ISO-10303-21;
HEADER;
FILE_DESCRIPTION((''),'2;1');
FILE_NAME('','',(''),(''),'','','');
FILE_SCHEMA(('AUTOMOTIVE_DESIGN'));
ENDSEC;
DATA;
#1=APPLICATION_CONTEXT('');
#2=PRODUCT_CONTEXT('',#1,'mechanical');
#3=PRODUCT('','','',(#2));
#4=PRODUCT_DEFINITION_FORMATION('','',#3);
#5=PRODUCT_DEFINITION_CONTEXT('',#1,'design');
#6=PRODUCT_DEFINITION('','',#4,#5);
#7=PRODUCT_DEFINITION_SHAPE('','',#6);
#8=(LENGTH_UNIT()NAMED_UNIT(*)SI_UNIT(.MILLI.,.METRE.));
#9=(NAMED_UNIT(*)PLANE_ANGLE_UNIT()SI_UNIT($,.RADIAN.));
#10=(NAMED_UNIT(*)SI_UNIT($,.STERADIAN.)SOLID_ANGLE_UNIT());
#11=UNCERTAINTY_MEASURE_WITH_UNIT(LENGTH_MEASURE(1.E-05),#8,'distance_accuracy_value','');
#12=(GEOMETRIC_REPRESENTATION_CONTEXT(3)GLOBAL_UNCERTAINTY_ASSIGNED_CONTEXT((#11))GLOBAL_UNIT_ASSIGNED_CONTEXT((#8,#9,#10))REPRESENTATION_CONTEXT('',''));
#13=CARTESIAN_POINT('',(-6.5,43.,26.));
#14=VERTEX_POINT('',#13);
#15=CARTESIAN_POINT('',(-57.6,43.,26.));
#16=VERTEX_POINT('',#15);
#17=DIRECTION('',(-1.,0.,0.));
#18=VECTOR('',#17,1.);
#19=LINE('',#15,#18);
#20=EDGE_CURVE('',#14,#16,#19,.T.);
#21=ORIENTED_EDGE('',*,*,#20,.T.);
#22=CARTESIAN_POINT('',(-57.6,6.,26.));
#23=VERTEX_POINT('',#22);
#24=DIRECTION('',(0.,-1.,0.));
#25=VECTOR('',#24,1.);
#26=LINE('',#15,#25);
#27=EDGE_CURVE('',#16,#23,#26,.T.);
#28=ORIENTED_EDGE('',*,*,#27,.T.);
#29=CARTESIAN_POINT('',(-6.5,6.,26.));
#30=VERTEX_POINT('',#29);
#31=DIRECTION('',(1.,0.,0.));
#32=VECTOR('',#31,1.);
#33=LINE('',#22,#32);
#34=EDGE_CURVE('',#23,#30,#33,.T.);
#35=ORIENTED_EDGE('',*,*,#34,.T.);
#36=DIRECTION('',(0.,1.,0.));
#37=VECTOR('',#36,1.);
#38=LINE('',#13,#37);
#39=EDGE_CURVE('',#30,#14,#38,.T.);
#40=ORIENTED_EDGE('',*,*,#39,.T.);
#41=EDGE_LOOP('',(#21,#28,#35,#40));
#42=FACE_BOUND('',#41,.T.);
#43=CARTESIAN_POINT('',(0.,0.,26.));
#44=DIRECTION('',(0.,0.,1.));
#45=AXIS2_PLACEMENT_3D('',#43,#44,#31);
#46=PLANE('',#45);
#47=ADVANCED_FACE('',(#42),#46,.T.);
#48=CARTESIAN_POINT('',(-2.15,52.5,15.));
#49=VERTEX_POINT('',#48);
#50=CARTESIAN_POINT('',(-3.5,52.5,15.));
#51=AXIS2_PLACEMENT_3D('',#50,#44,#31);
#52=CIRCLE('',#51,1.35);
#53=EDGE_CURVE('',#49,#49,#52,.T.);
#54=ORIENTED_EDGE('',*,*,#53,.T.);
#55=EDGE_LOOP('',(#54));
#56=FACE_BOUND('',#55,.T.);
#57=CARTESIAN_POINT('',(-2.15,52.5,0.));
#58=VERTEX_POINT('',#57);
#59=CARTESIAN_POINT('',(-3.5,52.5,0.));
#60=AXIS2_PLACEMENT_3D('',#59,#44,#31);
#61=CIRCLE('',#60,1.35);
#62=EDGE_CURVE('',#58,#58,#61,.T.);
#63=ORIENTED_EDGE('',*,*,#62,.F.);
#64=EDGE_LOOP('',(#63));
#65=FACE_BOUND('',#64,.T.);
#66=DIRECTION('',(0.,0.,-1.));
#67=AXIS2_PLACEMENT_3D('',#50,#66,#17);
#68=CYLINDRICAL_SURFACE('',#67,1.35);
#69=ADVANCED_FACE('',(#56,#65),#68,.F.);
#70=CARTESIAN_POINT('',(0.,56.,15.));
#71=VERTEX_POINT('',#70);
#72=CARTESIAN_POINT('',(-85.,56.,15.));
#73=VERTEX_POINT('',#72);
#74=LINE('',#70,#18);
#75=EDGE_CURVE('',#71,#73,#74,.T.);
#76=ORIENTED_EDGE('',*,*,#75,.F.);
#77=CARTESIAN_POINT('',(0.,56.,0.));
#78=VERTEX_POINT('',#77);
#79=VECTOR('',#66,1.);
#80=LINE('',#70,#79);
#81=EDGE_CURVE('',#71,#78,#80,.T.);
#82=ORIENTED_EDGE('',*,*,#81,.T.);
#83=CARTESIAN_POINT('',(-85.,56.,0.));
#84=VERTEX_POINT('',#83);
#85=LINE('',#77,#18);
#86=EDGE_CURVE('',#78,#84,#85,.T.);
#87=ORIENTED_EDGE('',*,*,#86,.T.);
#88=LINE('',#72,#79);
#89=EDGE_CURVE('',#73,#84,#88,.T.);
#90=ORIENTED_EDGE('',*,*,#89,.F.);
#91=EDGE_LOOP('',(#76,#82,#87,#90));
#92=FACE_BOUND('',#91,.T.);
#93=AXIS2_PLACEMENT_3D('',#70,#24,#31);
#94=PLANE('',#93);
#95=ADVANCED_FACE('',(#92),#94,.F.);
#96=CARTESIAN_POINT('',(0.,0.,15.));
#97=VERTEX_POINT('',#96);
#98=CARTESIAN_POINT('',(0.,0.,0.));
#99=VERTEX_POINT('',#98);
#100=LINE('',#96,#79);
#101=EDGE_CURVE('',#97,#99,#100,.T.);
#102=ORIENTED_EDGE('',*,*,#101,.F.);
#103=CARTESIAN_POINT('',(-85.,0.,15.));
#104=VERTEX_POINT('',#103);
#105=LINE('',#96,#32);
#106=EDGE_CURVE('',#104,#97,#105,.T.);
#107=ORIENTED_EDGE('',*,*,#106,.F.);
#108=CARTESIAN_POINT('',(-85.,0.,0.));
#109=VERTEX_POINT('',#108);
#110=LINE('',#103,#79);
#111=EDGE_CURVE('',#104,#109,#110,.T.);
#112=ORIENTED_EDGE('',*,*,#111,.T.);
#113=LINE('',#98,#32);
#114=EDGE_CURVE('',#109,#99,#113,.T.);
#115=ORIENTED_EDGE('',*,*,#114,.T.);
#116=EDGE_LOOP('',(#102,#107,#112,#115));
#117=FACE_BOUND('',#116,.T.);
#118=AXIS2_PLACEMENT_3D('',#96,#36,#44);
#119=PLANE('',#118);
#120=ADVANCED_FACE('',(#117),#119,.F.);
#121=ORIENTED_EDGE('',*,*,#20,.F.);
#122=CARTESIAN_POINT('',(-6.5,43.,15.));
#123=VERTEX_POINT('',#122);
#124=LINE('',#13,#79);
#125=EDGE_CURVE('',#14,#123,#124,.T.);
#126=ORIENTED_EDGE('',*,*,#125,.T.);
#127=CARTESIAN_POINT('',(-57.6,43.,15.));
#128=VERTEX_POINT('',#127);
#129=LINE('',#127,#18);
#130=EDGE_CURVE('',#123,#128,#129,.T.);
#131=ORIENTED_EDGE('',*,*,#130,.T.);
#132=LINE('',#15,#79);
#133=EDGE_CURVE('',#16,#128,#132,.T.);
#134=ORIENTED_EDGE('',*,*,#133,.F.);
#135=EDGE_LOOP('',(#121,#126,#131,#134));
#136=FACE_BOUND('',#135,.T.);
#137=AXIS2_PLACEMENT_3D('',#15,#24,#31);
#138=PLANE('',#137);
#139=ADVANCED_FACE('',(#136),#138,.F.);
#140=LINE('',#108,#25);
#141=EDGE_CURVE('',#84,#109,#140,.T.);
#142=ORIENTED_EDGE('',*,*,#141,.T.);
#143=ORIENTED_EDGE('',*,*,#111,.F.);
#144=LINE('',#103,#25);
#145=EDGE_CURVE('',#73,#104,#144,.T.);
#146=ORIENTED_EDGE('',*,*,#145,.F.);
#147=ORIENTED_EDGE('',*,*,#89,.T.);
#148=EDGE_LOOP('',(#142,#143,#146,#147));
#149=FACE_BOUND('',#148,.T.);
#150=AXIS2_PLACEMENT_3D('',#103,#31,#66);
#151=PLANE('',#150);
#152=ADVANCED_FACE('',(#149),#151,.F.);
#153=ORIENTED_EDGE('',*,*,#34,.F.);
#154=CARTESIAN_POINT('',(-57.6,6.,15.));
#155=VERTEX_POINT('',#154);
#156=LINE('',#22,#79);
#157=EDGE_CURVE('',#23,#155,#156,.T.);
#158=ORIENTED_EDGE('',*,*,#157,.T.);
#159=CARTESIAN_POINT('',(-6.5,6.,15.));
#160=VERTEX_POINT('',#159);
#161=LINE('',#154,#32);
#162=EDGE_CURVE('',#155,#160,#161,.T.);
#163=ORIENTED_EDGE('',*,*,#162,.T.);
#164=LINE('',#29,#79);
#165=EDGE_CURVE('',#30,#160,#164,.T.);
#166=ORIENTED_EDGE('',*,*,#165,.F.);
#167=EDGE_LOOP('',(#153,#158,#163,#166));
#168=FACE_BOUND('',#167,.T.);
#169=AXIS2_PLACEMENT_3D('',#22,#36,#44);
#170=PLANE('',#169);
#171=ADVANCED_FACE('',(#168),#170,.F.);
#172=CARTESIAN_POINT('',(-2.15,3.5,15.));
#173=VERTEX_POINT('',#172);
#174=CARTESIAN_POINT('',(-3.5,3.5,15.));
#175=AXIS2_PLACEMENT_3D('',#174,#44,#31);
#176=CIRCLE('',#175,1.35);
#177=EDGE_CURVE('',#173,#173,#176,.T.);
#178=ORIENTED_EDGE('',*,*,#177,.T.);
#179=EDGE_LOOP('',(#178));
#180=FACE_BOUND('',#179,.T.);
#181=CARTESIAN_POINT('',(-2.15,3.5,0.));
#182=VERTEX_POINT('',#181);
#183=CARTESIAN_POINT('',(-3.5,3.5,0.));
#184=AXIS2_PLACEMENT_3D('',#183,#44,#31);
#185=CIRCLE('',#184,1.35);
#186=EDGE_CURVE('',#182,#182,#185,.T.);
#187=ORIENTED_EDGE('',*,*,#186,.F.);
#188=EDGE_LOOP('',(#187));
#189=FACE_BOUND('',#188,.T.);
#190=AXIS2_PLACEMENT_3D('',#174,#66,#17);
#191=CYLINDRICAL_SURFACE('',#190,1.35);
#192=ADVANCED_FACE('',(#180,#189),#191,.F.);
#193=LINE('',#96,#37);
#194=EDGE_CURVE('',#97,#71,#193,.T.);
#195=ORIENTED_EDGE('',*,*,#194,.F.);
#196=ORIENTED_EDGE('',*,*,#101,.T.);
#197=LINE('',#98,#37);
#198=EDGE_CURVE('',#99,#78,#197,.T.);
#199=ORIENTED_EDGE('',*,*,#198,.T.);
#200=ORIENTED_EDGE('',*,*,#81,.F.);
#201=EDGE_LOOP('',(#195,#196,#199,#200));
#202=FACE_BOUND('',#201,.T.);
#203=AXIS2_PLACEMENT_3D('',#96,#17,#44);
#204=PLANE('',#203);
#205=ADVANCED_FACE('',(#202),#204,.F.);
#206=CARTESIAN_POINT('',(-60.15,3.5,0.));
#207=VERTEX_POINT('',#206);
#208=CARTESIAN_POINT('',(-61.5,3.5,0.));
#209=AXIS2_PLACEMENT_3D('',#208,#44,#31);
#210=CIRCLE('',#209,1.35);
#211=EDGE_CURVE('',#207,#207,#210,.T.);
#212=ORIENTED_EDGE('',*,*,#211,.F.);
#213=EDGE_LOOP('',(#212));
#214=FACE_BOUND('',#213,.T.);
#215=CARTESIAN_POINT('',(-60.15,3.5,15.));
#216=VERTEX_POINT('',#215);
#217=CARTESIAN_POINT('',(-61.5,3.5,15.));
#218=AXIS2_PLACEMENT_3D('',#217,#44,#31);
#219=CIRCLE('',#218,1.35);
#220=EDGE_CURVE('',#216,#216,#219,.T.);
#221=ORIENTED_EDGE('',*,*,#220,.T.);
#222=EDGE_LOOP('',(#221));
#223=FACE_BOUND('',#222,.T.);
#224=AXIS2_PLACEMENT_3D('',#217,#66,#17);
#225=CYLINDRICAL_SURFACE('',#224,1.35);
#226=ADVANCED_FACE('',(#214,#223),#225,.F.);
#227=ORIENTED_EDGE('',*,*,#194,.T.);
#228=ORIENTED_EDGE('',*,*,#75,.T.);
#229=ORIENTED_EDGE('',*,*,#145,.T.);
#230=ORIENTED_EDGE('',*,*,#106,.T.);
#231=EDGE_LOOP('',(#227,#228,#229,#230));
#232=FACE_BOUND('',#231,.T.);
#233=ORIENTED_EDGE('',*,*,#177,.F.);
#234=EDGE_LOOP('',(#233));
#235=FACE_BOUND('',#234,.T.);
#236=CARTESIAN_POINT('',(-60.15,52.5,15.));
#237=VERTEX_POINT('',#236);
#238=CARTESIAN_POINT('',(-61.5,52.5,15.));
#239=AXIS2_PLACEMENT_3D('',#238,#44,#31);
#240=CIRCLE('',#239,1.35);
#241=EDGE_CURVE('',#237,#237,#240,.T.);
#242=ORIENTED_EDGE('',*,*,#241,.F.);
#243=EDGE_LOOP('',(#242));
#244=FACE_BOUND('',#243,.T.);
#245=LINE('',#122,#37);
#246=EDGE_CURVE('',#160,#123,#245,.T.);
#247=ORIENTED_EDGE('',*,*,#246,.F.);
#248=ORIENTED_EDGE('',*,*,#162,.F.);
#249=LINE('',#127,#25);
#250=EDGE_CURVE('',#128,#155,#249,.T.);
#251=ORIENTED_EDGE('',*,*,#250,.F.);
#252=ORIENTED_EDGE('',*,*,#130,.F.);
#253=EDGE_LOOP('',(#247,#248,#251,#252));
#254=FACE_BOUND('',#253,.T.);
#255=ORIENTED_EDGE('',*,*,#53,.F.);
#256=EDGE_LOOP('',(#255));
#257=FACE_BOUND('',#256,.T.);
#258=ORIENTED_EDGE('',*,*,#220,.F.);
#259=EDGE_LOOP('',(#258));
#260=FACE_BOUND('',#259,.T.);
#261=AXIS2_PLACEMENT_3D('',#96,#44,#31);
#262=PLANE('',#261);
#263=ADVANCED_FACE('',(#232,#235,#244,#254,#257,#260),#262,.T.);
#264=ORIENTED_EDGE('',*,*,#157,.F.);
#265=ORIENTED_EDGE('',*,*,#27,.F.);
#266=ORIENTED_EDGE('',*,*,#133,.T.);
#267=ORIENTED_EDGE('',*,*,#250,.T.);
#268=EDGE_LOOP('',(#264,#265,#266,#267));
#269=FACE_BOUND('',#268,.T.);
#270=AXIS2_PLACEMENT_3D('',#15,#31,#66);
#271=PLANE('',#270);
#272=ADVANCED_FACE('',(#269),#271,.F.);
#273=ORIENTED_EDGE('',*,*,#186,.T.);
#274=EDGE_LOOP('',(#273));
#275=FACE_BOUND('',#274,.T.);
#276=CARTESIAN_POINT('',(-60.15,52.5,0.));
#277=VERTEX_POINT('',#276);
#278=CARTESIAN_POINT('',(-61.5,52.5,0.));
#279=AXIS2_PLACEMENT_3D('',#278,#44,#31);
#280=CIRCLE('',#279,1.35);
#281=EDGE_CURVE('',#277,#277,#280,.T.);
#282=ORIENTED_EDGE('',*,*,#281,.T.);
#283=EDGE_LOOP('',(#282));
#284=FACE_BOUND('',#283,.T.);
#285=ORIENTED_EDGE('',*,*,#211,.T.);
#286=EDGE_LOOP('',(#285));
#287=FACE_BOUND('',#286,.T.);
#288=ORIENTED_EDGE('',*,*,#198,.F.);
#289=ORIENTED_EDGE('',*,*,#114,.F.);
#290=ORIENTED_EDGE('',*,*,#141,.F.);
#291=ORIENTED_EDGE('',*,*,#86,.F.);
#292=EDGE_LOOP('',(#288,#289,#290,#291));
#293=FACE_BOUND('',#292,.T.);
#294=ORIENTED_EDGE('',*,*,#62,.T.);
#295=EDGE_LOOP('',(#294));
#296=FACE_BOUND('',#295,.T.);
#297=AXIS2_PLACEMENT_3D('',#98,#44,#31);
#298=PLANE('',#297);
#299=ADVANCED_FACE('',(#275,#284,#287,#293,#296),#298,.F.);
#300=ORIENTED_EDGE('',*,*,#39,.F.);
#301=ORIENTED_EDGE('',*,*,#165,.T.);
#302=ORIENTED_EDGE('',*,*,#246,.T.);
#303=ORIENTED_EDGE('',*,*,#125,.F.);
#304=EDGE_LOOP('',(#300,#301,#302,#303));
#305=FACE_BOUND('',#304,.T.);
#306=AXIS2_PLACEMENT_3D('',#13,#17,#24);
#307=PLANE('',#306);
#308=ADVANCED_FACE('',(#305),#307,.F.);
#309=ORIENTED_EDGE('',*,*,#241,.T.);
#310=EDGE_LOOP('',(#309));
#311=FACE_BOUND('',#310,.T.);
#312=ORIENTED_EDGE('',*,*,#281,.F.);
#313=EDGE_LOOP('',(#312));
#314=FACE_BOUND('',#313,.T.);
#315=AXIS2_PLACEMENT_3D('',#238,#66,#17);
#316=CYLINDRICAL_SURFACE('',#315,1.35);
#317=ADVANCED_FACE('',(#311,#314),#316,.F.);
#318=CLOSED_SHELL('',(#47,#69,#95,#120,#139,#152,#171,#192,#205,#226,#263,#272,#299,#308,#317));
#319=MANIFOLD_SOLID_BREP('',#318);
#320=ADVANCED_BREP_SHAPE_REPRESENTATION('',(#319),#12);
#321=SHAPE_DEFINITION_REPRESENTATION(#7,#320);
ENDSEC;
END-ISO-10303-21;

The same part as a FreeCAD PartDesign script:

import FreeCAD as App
import Part
import Sketcher

V = App.Vector
Q = App.Units.Quantity


def add_polygon(sketch, points):
    """Adds a closed chain of lines whose ends are joined by coincident constraints."""
    first, n = sketch.GeometryCount, len(points)
    for a, b in zip(points, points[1:] + points[:1]):
        sketch.addGeometry(Part.LineSegment(App.Vector(*a, 0), App.Vector(*b, 0)), False)
    for i in range(n):
        sketch.addConstraint(Sketcher.Constraint("Coincident", first + i, 2, first + (i + 1) % n, 1))

doc = App.newDocument("Part")
body = doc.addObject("PartDesign::Body", "Body")

# Sketch on XY plane
sketch1 = body.newObject("Sketcher::SketchObject", "Sketch")
sketch1.AttachmentSupport = (doc.getObject("XY_Plane"), [""])
sketch1.MapMode = "FlatFace"
add_polygon(sketch1, [(-85, 56), (-85, 0), (0, 0), (0, 56)])  # lines 0-3
sketch1.addGeometry(Part.Circle(V(-61.5, 3.5, 0), V(0, 0, 1), 1.35), False)  # 4
sketch1.addGeometry(Part.Circle(V(-3.5, 3.5, 0), V(0, 0, 1), 1.35), False)  # 5
sketch1.addGeometry(Part.Circle(V(-61.5, 52.5, 0), V(0, 0, 1), 1.35), False)  # 6
sketch1.addGeometry(Part.Circle(V(-3.5, 52.5, 0), V(0, 0, 1), 1.35), False)  # 7
sketch1.addConstraint([
    Sketcher.Constraint("Vertical", 0),
    Sketcher.Constraint("Horizontal", 1),
    Sketcher.Constraint("Vertical", 2),
    Sketcher.Constraint("Horizontal", 3),
    Sketcher.Constraint("Coincident", 1, 2, -1, 1),
    Sketcher.Constraint("Equal", 4, 5),
    Sketcher.Constraint("Equal", 5, 6),
    Sketcher.Constraint("Equal", 6, 7),
    Sketcher.Constraint("Horizontal", 4, 3, 5, 3),
    Sketcher.Constraint("Horizontal", 6, 3, 7, 3),
    Sketcher.Constraint("Vertical", 4, 3, 6, 3),
    Sketcher.Constraint("Vertical", 5, 3, 7, 3),
    Sketcher.Constraint("Diameter", 4, Q("2.7 mm")),
    Sketcher.Constraint("DistanceX", 1, 1, 1, 2, Q("85 mm")),
    Sketcher.Constraint("DistanceY", 0, 2, 0, 1, Q("56 mm")),
    Sketcher.Constraint("DistanceX", 4, 3, 5, 3, Q("58 mm")),
    Sketcher.Constraint("DistanceY", 4, 3, 6, 3, Q("49 mm")),
    Sketcher.Constraint("DistanceX", 4, 3, -1, 1, Q("61.5 mm")),
    Sketcher.Constraint("DistanceY", -1, 1, 4, 3, Q("3.5 mm")),
])
pad1 = body.newObject("PartDesign::Pad", "Pad")
pad1.Profile = sketch1
pad1.Length = 15

# Sketch on XY plane
sketch2 = body.newObject("Sketcher::SketchObject", "Sketch001")
sketch2.AttachmentSupport = (doc.getObject("XY_Plane"), [""])
sketch2.MapMode = "FlatFace"
sketch2.AttachmentOffset = App.Placement(V(0, 0, 15), App.Rotation())
add_polygon(sketch2, [(-57.6, 43), (-57.6, 6), (-6.5, 6), (-6.5, 43)])  # lines 0-3
sketch2.addConstraint([
    Sketcher.Constraint("Vertical", 0),
    Sketcher.Constraint("Horizontal", 1),
    Sketcher.Constraint("Vertical", 2),
    Sketcher.Constraint("Horizontal", 3),
    Sketcher.Constraint("DistanceY", 0, 2, 0, 1, Q("37 mm")),
    Sketcher.Constraint("DistanceX", 1, 1, 1, 2, Q("51.1 mm")),
    Sketcher.Constraint("DistanceY", -1, 1, 0, 2, Q("6 mm")),
    Sketcher.Constraint("DistanceX", 0, 2, -1, 1, Q("57.6 mm")),
])
pad2 = body.newObject("PartDesign::Pad", "Pad001")
pad2.Profile = sketch2
pad2.Length = 11

doc.recompute()
